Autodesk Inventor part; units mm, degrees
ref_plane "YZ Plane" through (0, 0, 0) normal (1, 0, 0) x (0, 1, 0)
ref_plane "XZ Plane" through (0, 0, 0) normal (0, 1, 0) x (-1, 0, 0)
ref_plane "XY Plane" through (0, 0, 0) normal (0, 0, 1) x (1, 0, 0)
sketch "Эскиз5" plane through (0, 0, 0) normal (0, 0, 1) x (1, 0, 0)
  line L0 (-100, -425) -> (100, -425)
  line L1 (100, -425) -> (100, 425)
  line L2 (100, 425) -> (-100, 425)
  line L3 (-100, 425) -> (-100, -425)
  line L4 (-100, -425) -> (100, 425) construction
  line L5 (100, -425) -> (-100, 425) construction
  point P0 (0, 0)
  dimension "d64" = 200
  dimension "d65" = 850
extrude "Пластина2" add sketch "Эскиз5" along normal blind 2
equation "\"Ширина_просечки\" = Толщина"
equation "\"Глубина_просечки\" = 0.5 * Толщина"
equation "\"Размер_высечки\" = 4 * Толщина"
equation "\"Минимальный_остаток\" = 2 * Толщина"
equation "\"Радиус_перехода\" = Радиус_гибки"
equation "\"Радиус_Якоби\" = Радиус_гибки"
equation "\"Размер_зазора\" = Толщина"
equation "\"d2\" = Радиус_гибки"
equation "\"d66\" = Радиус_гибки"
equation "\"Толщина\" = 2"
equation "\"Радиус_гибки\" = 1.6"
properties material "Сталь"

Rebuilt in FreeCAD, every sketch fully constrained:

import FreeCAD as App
import Part
import Sketcher
from FreeCAD import Vector

doc = App.newDocument("Part")
body = doc.addObject("PartDesign::Body", "Body")

# Sketch on XY plane
sketch1 = body.newObject("Sketcher::SketchObject", "Sketch")
sketch1.AttachmentSupport = (doc.getObject("XY_Plane"), [""])
sketch1.MapMode = "FlatFace"
sketch1.addGeometry([
    Part.LineSegment(Vector(-100, 425, 0), Vector(-100, -425, 0)),
    Part.LineSegment(Vector(-100, -425, 0), Vector(100, -425, 0)),
    Part.LineSegment(Vector(100, -425, 0), Vector(100, 425, 0)),
    Part.LineSegment(Vector(100, 425, 0), Vector(-100, 425, 0)),
], False)
sketch1.addConstraint([
    Sketcher.Constraint("Coincident", 0, 2, 1, 1),
    Sketcher.Constraint("Coincident", 1, 2, 2, 1),
    Sketcher.Constraint("Coincident", 2, 2, 3, 1),
    Sketcher.Constraint("Coincident", 3, 2, 0, 1),
    Sketcher.Constraint("Vertical", 0),
    Sketcher.Constraint("Horizontal", 1),
    Sketcher.Constraint("Vertical", 2),
    Sketcher.Constraint("Horizontal", 3),
    Sketcher.Constraint("Symmetric", 0, 2, 2, 2, -1, 1),
    Sketcher.Constraint("DistanceX", 1, 1, 1, 2, 200.0),
    Sketcher.Constraint("DistanceY", 0, 2, 0, 1, 850.0),
])
pad1 = body.newObject("PartDesign::Pad", "Pad")
pad1.Profile = sketch1
pad1.Length = 2

doc.recompute()
